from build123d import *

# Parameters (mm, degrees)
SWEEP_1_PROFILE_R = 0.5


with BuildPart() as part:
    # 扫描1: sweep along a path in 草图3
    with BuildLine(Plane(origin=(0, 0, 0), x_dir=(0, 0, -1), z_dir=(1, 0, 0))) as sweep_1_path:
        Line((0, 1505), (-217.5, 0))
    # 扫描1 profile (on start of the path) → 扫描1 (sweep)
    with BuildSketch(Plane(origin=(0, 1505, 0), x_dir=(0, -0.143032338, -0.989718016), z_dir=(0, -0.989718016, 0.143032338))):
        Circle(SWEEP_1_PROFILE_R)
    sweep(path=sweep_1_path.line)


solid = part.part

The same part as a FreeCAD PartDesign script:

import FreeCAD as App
import Part
import Sketcher
from FreeCAD import Vector

doc = App.newDocument("Part")
body = doc.addObject("PartDesign::Body", "Body")

# Sketch on an angled plane
sketch1 = body.newObject("Sketcher::SketchObject", "Sketch")
sketch1.Placement = App.Placement(Vector(0, 1505, 0), App.Rotation(Vector(0, -0.143032338, -0.989718016), Vector(1.000000001, 0, 0), Vector(0, -0.989718016, 0.143032338), "ZXY"))
sketch1.addGeometry(Part.Circle(Vector(0, 0, 0), Vector(0, 0, 1), 0.5), False)
sketch1.addConstraint(Sketcher.Constraint("Coincident", 0, 3, -1, 1))
sketch1.addConstraint(Sketcher.Constraint("Diameter", 0, 1.0))

# Sketch on an angled plane
sketch2 = body.newObject("Sketcher::SketchObject", "Sketch001")
sketch2.Placement = App.Placement(Vector(0, 30.789666, 213.050331), App.Rotation(Vector(0, 0.989718016, -0.143032338), Vector(1.000000001, 0, 0), Vector(0, -0.143032338, -0.989718016), "ZXY"))
sketch2.addGeometry(Part.LineSegment(Vector(1490, 0, 0), Vector(-31, 0, 0)), False)
sketch2.addConstraint(Sketcher.Constraint("Horizontal", 0))
sketch2.addConstraint(Sketcher.Constraint("PointOnObject", 0, 1, -1))
sketch2.addConstraint(Sketcher.Constraint("DistanceX", 0, 2, 0, 1, 1520.635148))
sketch2.addConstraint(Sketcher.Constraint("DistanceX", -1, 1, 0, 1, 1489.525615))
doc.recompute()

additivepipe = body.newObject("PartDesign::AdditivePipe", "AdditivePipe")
additivepipe.Profile = sketch1
additivepipe.Spine = (sketch2, ["Edge1"])

doc.recompute()
